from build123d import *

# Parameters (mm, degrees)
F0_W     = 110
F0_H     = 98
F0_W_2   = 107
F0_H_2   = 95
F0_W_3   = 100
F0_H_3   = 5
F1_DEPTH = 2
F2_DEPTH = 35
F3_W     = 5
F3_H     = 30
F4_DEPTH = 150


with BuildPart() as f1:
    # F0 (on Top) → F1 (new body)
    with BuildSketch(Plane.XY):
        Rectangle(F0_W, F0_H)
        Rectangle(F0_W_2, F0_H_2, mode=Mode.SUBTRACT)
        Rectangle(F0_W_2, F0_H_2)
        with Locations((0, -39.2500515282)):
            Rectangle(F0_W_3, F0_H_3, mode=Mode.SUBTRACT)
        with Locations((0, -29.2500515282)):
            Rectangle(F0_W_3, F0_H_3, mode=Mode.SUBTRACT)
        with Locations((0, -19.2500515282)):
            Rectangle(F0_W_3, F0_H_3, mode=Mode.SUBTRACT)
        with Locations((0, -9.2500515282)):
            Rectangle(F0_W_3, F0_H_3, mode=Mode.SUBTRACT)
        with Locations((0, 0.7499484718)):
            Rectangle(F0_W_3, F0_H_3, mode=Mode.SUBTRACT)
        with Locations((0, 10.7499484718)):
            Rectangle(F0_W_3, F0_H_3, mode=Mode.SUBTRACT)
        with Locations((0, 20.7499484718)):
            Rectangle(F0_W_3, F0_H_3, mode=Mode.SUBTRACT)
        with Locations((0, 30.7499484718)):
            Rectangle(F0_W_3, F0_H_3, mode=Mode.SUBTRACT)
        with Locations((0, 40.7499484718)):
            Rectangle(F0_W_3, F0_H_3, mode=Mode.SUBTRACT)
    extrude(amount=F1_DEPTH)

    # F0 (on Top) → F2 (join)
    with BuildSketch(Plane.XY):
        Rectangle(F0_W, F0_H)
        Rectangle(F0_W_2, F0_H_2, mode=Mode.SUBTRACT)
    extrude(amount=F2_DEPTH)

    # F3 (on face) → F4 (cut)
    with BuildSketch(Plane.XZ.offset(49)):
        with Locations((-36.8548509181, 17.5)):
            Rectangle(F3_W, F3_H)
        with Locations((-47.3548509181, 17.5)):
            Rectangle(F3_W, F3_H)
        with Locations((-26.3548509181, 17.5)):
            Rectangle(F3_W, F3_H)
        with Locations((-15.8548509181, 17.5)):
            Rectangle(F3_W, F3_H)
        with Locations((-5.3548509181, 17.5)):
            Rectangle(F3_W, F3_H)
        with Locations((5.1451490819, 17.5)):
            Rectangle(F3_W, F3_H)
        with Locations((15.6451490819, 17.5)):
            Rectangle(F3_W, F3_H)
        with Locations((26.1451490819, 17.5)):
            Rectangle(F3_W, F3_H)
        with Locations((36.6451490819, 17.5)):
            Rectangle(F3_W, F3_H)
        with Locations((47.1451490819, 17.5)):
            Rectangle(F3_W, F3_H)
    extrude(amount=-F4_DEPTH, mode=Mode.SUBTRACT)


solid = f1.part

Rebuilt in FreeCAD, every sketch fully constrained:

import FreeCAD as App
import Part
import Sketcher

V = App.Vector
Q = App.Units.Quantity

doc = App.newDocument("Part")
body = doc.addObject("PartDesign::Body", "Body")

sketch1 = body.newObject("Sketcher::SketchObject", "Sketch")
sketch1.AttachmentSupport = (doc.getObject("XY_Plane"), [""])
sketch1.MapMode = "FlatFace"
sketch1.addGeometry([
    Part.LineSegment(V(-55, 49, 0), V(-55, -49, 0)),
    Part.LineSegment(V(-55, -49, 0), V(55, -49, 0)),
    Part.LineSegment(V(55, -49, 0), V(55, 49, 0)),
    Part.LineSegment(V(55, 49, 0), V(-55, 49, 0)),
    Part.LineSegment(V(50, -41.750052, 0), V(-50, -41.750052, 0)),
    Part.LineSegment(V(-50, -41.750052, 0), V(-50, -36.750052, 0)),
    Part.LineSegment(V(-50, -36.750052, 0), V(50, -36.750052, 0)),
    Part.LineSegment(V(50, -36.750052, 0), V(50, -41.750052, 0)),
    Part.LineSegment(V(50, -31.750052, 0), V(-50, -31.750052, 0)),
    Part.LineSegment(V(-50, -31.750052, 0), V(-50, -26.750052, 0)),
    Part.LineSegment(V(-50, -26.750052, 0), V(50, -26.750052, 0)),
    Part.LineSegment(V(50, -26.750052, 0), V(50, -31.750052, 0)),
    Part.LineSegment(V(50, -21.750052, 0), V(-50, -21.750052, 0)),
    Part.LineSegment(V(-50, -21.750052, 0), V(-50, -16.750052, 0)),
    Part.LineSegment(V(-50, -16.750052, 0), V(50, -16.750052, 0)),
    Part.LineSegment(V(50, -16.750052, 0), V(50, -21.750052, 0)),
    Part.LineSegment(V(50, -11.750052, 0), V(-50, -11.750052, 0)),
    Part.LineSegment(V(-50, -11.750052, 0), V(-50, -6.750052, 0)),
    Part.LineSegment(V(-50, -6.750052, 0), V(50, -6.750052, 0)),
    Part.LineSegment(V(50, -6.750052, 0), V(50, -11.750052, 0)),
    Part.LineSegment(V(50, -1.750052, 0), V(-50, -1.750052, 0)),
    Part.LineSegment(V(-50, -1.750052, 0), V(-50, 3.249948, 0)),
    Part.LineSegment(V(-50, 3.249948, 0), V(50, 3.249948, 0)),
    Part.LineSegment(V(50, 3.249948, 0), V(50, -1.750052, 0)),
    Part.LineSegment(V(50, 8.249948, 0), V(-50, 8.249948, 0)),
    Part.LineSegment(V(-50, 8.249948, 0), V(-50, 13.249948, 0)),
    Part.LineSegment(V(-50, 13.249948, 0), V(50, 13.249948, 0)),
    Part.LineSegment(V(50, 13.249948, 0), V(50, 8.249948, 0)),
    Part.LineSegment(V(50, 18.249948, 0), V(-50, 18.249948, 0)),
    Part.LineSegment(V(-50, 18.249948, 0), V(-50, 23.249948, 0)),
    Part.LineSegment(V(-50, 23.249948, 0), V(50, 23.249948, 0)),
    Part.LineSegment(V(50, 23.249948, 0), V(50, 18.249948, 0)),
    Part.LineSegment(V(50, 28.249948, 0), V(-50, 28.249948, 0)),
    Part.LineSegment(V(-50, 28.249948, 0), V(-50, 33.249948, 0)),
    Part.LineSegment(V(-50, 33.249948, 0), V(50, 33.249948, 0)),
    Part.LineSegment(V(50, 33.249948, 0), V(50, 28.249948, 0)),
    Part.LineSegment(V(50, 38.249948, 0), V(-50, 38.249948, 0)),
    Part.LineSegment(V(-50, 38.249948, 0), V(-50, 43.249948, 0)),
    Part.LineSegment(V(-50, 43.249948, 0), V(50, 43.249948, 0)),
    Part.LineSegment(V(50, 43.249948, 0), V(50, 38.249948, 0)),
], False)
sketch1.addConstraint([
    Sketcher.Constraint("Coincident", 0, 2, 1, 1),
    Sketcher.Constraint("Coincident", 1, 2, 2, 1),
    Sketcher.Constraint("Coincident", 2, 2, 3, 1),
    Sketcher.Constraint("Coincident", 3, 2, 0, 1),
    Sketcher.Constraint("Coincident", 4, 2, 5, 1),
    Sketcher.Constraint("Coincident", 5, 2, 6, 1),
    Sketcher.Constraint("Coincident", 6, 2, 7, 1),
    Sketcher.Constraint("Coincident", 7, 2, 4, 1),
    Sketcher.Constraint("Coincident", 8, 2, 9, 1),
    Sketcher.Constraint("Coincident", 9, 2, 10, 1),
    Sketcher.Constraint("Coincident", 10, 2, 11, 1),
    Sketcher.Constraint("Coincident", 11, 2, 8, 1),
    Sketcher.Constraint("Coincident", 12, 2, 13, 1),
    Sketcher.Constraint("Coincident", 13, 2, 14, 1),
    Sketcher.Constraint("Coincident", 14, 2, 15, 1),
    Sketcher.Constraint("Coincident", 15, 2, 12, 1),
    Sketcher.Constraint("Coincident", 16, 2, 17, 1),
    Sketcher.Constraint("Coincident", 17, 2, 18, 1),
    Sketcher.Constraint("Coincident", 18, 2, 19, 1),
    Sketcher.Constraint("Coincident", 19, 2, 16, 1),
    Sketcher.Constraint("Coincident", 20, 2, 21, 1),
    Sketcher.Constraint("Coincident", 21, 2, 22, 1),
    Sketcher.Constraint("Coincident", 22, 2, 23, 1),
    Sketcher.Constraint("Coincident", 23, 2, 20, 1),
    Sketcher.Constraint("Coincident", 24, 2, 25, 1),
    Sketcher.Constraint("Coincident", 25, 2, 26, 1),
    Sketcher.Constraint("Coincident", 26, 2, 27, 1),
    Sketcher.Constraint("Coincident", 27, 2, 24, 1),
    Sketcher.Constraint("Coincident", 28, 2, 29, 1),
    Sketcher.Constraint("Coincident", 29, 2, 30, 1),
    Sketcher.Constraint("Coincident", 30, 2, 31, 1),
    Sketcher.Constraint("Coincident", 31, 2, 28, 1),
    Sketcher.Constraint("Coincident", 32, 2, 33, 1),
    Sketcher.Constraint("Coincident", 33, 2, 34, 1),
    Sketcher.Constraint("Coincident", 34, 2, 35, 1),
    Sketcher.Constraint("Coincident", 35, 2, 32, 1),
    Sketcher.Constraint("Coincident", 36, 2, 37, 1),
    Sketcher.Constraint("Coincident", 37, 2, 38, 1),
    Sketcher.Constraint("Coincident", 38, 2, 39, 1),
    Sketcher.Constraint("Coincident", 39, 2, 36, 1),
    Sketcher.Constraint("Vertical", 0),
    Sketcher.Constraint("Horizontal", 1),
    Sketcher.Constraint("Vertical", 2),
    Sketcher.Constraint("Horizontal", 3),
    Sketcher.Constraint("Horizontal", 4),
    Sketcher.Constraint("Vertical", 5),
    Sketcher.Constraint("Horizontal", 6),
    Sketcher.Constraint("Vertical", 7),
    Sketcher.Constraint("Horizontal", 8),
    Sketcher.Constraint("Vertical", 9),
    Sketcher.Constraint("Horizontal", 10),
    Sketcher.Constraint("Vertical", 11),
    Sketcher.Constraint("Horizontal", 12),
    Sketcher.Constraint("Vertical", 13),
    Sketcher.Constraint("Horizontal", 14),
    Sketcher.Constraint("Vertical", 15),
    Sketcher.Constraint("Horizontal", 16),
    Sketcher.Constraint("Vertical", 17),
    Sketcher.Constraint("Horizontal", 18),
    Sketcher.Constraint("Vertical", 19),
    Sketcher.Constraint("Horizontal", 20),
    Sketcher.Constraint("Vertical", 21),
    Sketcher.Constraint("Horizontal", 22),
    Sketcher.Constraint("Vertical", 23),
    Sketcher.Constraint("Horizontal", 24),
    Sketcher.Constraint("Vertical", 25),
    Sketcher.Constraint("Horizontal", 26),
    Sketcher.Constraint("Vertical", 27),
    Sketcher.Constraint("Horizontal", 28),
    Sketcher.Constraint("Vertical", 29),
    Sketcher.Constraint("Horizontal", 30),
    Sketcher.Constraint("Vertical", 31),
    Sketcher.Constraint("Horizontal", 32),
    Sketcher.Constraint("Vertical", 33),
    Sketcher.Constraint("Horizontal", 34),
    Sketcher.Constraint("Vertical", 35),
    Sketcher.Constraint("Horizontal", 36),
    Sketcher.Constraint("Vertical", 37),
    Sketcher.Constraint("Horizontal", 38),
    Sketcher.Constraint("Vertical", 39),
    Sketcher.Constraint("Symmetric", 0, 2, 2, 2, -1, 1),
    Sketcher.Constraint("Vertical", 5, 2, 8, 2),
    Sketcher.Constraint("Vertical", 7, 2, 10, 2),
    Sketcher.Constraint("Vertical", 9, 2, 12, 2),
    Sketcher.Constraint("Vertical", 11, 2, 14, 2),
    Sketcher.Constraint("Vertical", 13, 2, 16, 2),
    Sketcher.Constraint("Vertical", 15, 2, 18, 2),
    Sketcher.Constraint("Vertical", 17, 2, 20, 2),
    Sketcher.Constraint("Vertical", 19, 2, 22, 2),
    Sketcher.Constraint("Vertical", 21, 2, 24, 2),
    Sketcher.Constraint("Vertical", 23, 2, 26, 2),
    Sketcher.Constraint("Vertical", 25, 2, 28, 2),
    Sketcher.Constraint("Vertical", 27, 2, 30, 2),
    Sketcher.Constraint("Vertical", 29, 2, 32, 2),
    Sketcher.Constraint("Vertical", 31, 2, 34, 2),
    Sketcher.Constraint("Vertical", 33, 2, 36, 2),
    Sketcher.Constraint("Vertical", 35, 2, 38, 2),
    Sketcher.Constraint("Equal", 7, 9),
    Sketcher.Constraint("Equal", 11, 13),
    Sketcher.Constraint("Equal", 15, 17),
    Sketcher.Constraint("Equal", 19, 21),
    Sketcher.Constraint("Equal", 23, 25),
    Sketcher.Constraint("Equal", 27, 29),
    Sketcher.Constraint("Equal", 31, 33),
    Sketcher.Constraint("Equal", 35, 37),
    Sketcher.Constraint("DistanceX", 1, 1, 1, 2, Q("110 mm")),
    Sketcher.Constraint("DistanceX", 4, 2, 4, 1, Q("100 mm")),
    Sketcher.Constraint("DistanceY", 0, 2, 0, 1, Q("98 mm")),
    Sketcher.Constraint("DistanceY", 5, 1, 5, 2, Q("5 mm")),
    Sketcher.Constraint("DistanceX", 4, 2, -1, 1, Q("50 mm")),
    Sketcher.Constraint("DistanceY", 5, 2, 8, 2, Q("5 mm")),
    Sketcher.Constraint("DistanceY", 9, 2, 12, 2, Q("5 mm")),
    Sketcher.Constraint("DistanceY", 13, 2, 16, 2, Q("5 mm")),
    Sketcher.Constraint("DistanceY", 17, 2, 20, 2, Q("5 mm")),
    Sketcher.Constraint("DistanceY", 21, 2, 24, 2, Q("5 mm")),
    Sketcher.Constraint("DistanceY", 25, 2, 28, 2, Q("5 mm")),
    Sketcher.Constraint("DistanceY", 29, 2, 32, 2, Q("5 mm")),
    Sketcher.Constraint("DistanceY", 33, 2, 36, 2, Q("5 mm")),
    Sketcher.Constraint("DistanceY", 4, 2, -1, 1, Q("41.750052 mm")),
])
pad1 = body.newObject("PartDesign::Pad", "Pad")
pad1.Profile = sketch1
pad1.Length = 2

sketch2 = body.newObject("Sketcher::SketchObject", "Sketch001")
sketch2.AttachmentSupport = (doc.getObject("XY_Plane"), [""])
sketch2.MapMode = "FlatFace"
sketch2.addGeometry([
    Part.LineSegment(V(-55, 49, 0), V(-55, -49, 0)),
    Part.LineSegment(V(-55, -49, 0), V(55, -49, 0)),
    Part.LineSegment(V(55, -49, 0), V(55, 49, 0)),
    Part.LineSegment(V(55, 49, 0), V(-55, 49, 0)),
    Part.LineSegment(V(53.5, -47.5, 0), V(-53.5, -47.5, 0)),
    Part.LineSegment(V(-53.5, -47.5, 0), V(-53.5, 47.5, 0)),
    Part.LineSegment(V(-53.5, 47.5, 0), V(53.5, 47.5, 0)),
    Part.LineSegment(V(53.5, 47.5, 0), V(53.5, -47.5, 0)),
], False)
sketch2.addConstraint([
    Sketcher.Constraint("Coincident", 0, 2, 1, 1),
    Sketcher.Constraint("Coincident", 1, 2, 2, 1),
    Sketcher.Constraint("Coincident", 2, 2, 3, 1),
    Sketcher.Constraint("Coincident", 3, 2, 0, 1),
    Sketcher.Constraint("Coincident", 4, 2, 5, 1),
    Sketcher.Constraint("Coincident", 5, 2, 6, 1),
    Sketcher.Constraint("Coincident", 6, 2, 7, 1),
    Sketcher.Constraint("Coincident", 7, 2, 4, 1),
    Sketcher.Constraint("Vertical", 0),
    Sketcher.Constraint("Horizontal", 1),
    Sketcher.Constraint("Vertical", 2),
    Sketcher.Constraint("Horizontal", 3),
    Sketcher.Constraint("Horizontal", 4),
    Sketcher.Constraint("Vertical", 5),
    Sketcher.Constraint("Horizontal", 6),
    Sketcher.Constraint("Vertical", 7),
    Sketcher.Constraint("Symmetric", 0, 2, 2, 2, -1, 1),
    Sketcher.Constraint("Symmetric", 4, 2, 6, 2, -1, 1),
    Sketcher.Constraint("DistanceX", 1, 1, 1, 2, Q("110 mm")),
    Sketcher.Constraint("DistanceX", 4, 2, 4, 1, Q("107 mm")),
    Sketcher.Constraint("DistanceY", 0, 2, 0, 1, Q("98 mm")),
    Sketcher.Constraint("DistanceY", 5, 1, 5, 2, Q("95 mm")),
])
pad2 = body.newObject("PartDesign::Pad", "Pad001")
pad2.Profile = sketch2
pad2.Length = 35

sketch3 = body.newObject("Sketcher::SketchObject", "Sketch002")
sketch3.AttachmentSupport = (doc.getObject("XZ_Plane"), [""])
sketch3.MapMode = "FlatFace"
sketch3.AttachmentOffset = App.Placement(V(0, 0, 49), App.Rotation())
sketch3.addGeometry([
    Part.LineSegment(V(-39.354851, 32.5, 0), V(-39.354851, 2.5, 0)),
    Part.LineSegment(V(-39.354851, 2.5, 0), V(-34.354851, 2.5, 0)),
    Part.LineSegment(V(-34.354851, 2.5, 0), V(-34.354851, 32.5, 0)),
    Part.LineSegment(V(-34.354851, 32.5, 0), V(-39.354851, 32.5, 0)),
    Part.LineSegment(V(-49.854851, 32.5, 0), V(-49.854851, 2.5, 0)),
    Part.LineSegment(V(-49.854851, 2.5, 0), V(-44.854851, 2.5, 0)),
    Part.LineSegment(V(-44.854851, 2.5, 0), V(-44.854851, 32.5, 0)),
    Part.LineSegment(V(-44.854851, 32.5, 0), V(-49.854851, 32.5, 0)),
    Part.LineSegment(V(-28.854851, 32.5, 0), V(-28.854851, 2.5, 0)),
    Part.LineSegment(V(-28.854851, 2.5, 0), V(-23.854851, 2.5, 0)),
    Part.LineSegment(V(-23.854851, 2.5, 0), V(-23.854851, 32.5, 0)),
    Part.LineSegment(V(-23.854851, 32.5, 0), V(-28.854851, 32.5, 0)),
    Part.LineSegment(V(-18.354851, 32.5, 0), V(-18.354851, 2.5, 0)),
    Part.LineSegment(V(-18.354851, 2.5, 0), V(-13.354851, 2.5, 0)),
    Part.LineSegment(V(-13.354851, 2.5, 0), V(-13.354851, 32.5, 0)),
    Part.LineSegment(V(-13.354851, 32.5, 0), V(-18.354851, 32.5, 0)),
    Part.LineSegment(V(-7.854851, 32.5, 0), V(-7.854851, 2.5, 0)),
    Part.LineSegment(V(-7.854851, 2.5, 0), V(-2.854851, 2.5, 0)),
    Part.LineSegment(V(-2.854851, 2.5, 0), V(-2.854851, 32.5, 0)),
    Part.LineSegment(V(-2.854851, 32.5, 0), V(-7.854851, 32.5, 0)),
    Part.LineSegment(V(2.645149, 32.5, 0), V(2.645149, 2.5, 0)),
    Part.LineSegment(V(2.645149, 2.5, 0), V(7.645149, 2.5, 0)),
    Part.LineSegment(V(7.645149, 2.5, 0), V(7.645149, 32.5, 0)),
    Part.LineSegment(V(7.645149, 32.5, 0), V(2.645149, 32.5, 0)),
    Part.LineSegment(V(13.145149, 32.5, 0), V(13.145149, 2.5, 0)),
    Part.LineSegment(V(13.145149, 2.5, 0), V(18.145149, 2.5, 0)),
    Part.LineSegment(V(18.145149, 2.5, 0), V(18.145149, 32.5, 0)),
    Part.LineSegment(V(18.145149, 32.5, 0), V(13.145149, 32.5, 0)),
    Part.LineSegment(V(23.645149, 32.5, 0), V(23.645149, 2.5, 0)),
    Part.LineSegment(V(23.645149, 2.5, 0), V(28.645149, 2.5, 0)),
    Part.LineSegment(V(28.645149, 2.5, 0), V(28.645149, 32.5, 0)),
    Part.LineSegment(V(28.645149, 32.5, 0), V(23.645149, 32.5, 0)),
    Part.LineSegment(V(34.145149, 32.5, 0), V(34.145149, 2.5, 0)),
    Part.LineSegment(V(34.145149, 2.5, 0), V(39.145149, 2.5, 0)),
    Part.LineSegment(V(39.145149, 2.5, 0), V(39.145149, 32.5, 0)),
    Part.LineSegment(V(39.145149, 32.5, 0), V(34.145149, 32.5, 0)),
    Part.LineSegment(V(44.645149, 32.5, 0), V(44.645149, 2.5, 0)),
    Part.LineSegment(V(44.645149, 2.5, 0), V(49.645149, 2.5, 0)),
    Part.LineSegment(V(49.645149, 2.5, 0), V(49.645149, 32.5, 0)),
    Part.LineSegment(V(49.645149, 32.5, 0), V(44.645149, 32.5, 0)),
], False)
sketch3.addConstraint([
    Sketcher.Constraint("Coincident", 0, 2, 1, 1),
    Sketcher.Constraint("Coincident", 1, 2, 2, 1),
    Sketcher.Constraint("Coincident", 2, 2, 3, 1),
    Sketcher.Constraint("Coincident", 3, 2, 0, 1),
    Sketcher.Constraint("Coincident", 4, 2, 5, 1),
    Sketcher.Constraint("Coincident", 5, 2, 6, 1),
    Sketcher.Constraint("Coincident", 6, 2, 7, 1),
    Sketcher.Constraint("Coincident", 7, 2, 4, 1),
    Sketcher.Constraint("Coincident", 8, 2, 9, 1),
    Sketcher.Constraint("Coincident", 9, 2, 10, 1),
    Sketcher.Constraint("Coincident", 10, 2, 11, 1),
    Sketcher.Constraint("Coincident", 11, 2, 8, 1),
    Sketcher.Constraint("Coincident", 12, 2, 13, 1),
    Sketcher.Constraint("Coincident", 13, 2, 14, 1),
    Sketcher.Constraint("Coincident", 14, 2, 15, 1),
    Sketcher.Constraint("Coincident", 15, 2, 12, 1),
    Sketcher.Constraint("Coincident", 16, 2, 17, 1),
    Sketcher.Constraint("Coincident", 17, 2, 18, 1),
    Sketcher.Constraint("Coincident", 18, 2, 19, 1),
    Sketcher.Constraint("Coincident", 19, 2, 16, 1),
    Sketcher.Constraint("Coincident", 20, 2, 21, 1),
    Sketcher.Constraint("Coincident", 21, 2, 22, 1),
    Sketcher.Constraint("Coincident", 22, 2, 23, 1),
    Sketcher.Constraint("Coincident", 23, 2, 20, 1),
    Sketcher.Constraint("Coincident", 24, 2, 25, 1),
    Sketcher.Constraint("Coincident", 25, 2, 26, 1),
    Sketcher.Constraint("Coincident", 26, 2, 27, 1),
    Sketcher.Constraint("Coincident", 27, 2, 24, 1),
    Sketcher.Constraint("Coincident", 28, 2, 29, 1),
    Sketcher.Constraint("Coincident", 29, 2, 30, 1),
    Sketcher.Constraint("Coincident", 30, 2, 31, 1),
    Sketcher.Constraint("Coincident", 31, 2, 28, 1),
    Sketcher.Constraint("Coincident", 32, 2, 33, 1),
    Sketcher.Constraint("Coincident", 33, 2, 34, 1),
    Sketcher.Constraint("Coincident", 34, 2, 35, 1),
    Sketcher.Constraint("Coincident", 35, 2, 32, 1),
    Sketcher.Constraint("Coincident", 36, 2, 37, 1),
    Sketcher.Constraint("Coincident", 37, 2, 38, 1),
    Sketcher.Constraint("Coincident", 38, 2, 39, 1),
    Sketcher.Constraint("Coincident", 39, 2, 36, 1),
    Sketcher.Constraint("Vertical", 0),
    Sketcher.Constraint("Horizontal", 1),
    Sketcher.Constraint("Vertical", 2),
    Sketcher.Constraint("Horizontal", 3),
    Sketcher.Constraint("Vertical", 4),
    Sketcher.Constraint("Horizontal", 5),
    Sketcher.Constraint("Vertical", 6),
    Sketcher.Constraint("Horizontal", 7),
    Sketcher.Constraint("Vertical", 8),
    Sketcher.Constraint("Horizontal", 9),
    Sketcher.Constraint("Vertical", 10),
    Sketcher.Constraint("Horizontal", 11),
    Sketcher.Constraint("Vertical", 12),
    Sketcher.Constraint("Horizontal", 13),
    Sketcher.Constraint("Vertical", 14),
    Sketcher.Constraint("Horizontal", 15),
    Sketcher.Constraint("Vertical", 16),
    Sketcher.Constraint("Horizontal", 17),
    Sketcher.Constraint("Vertical", 18),
    Sketcher.Constraint("Horizontal", 19),
    Sketcher.Constraint("Vertical", 20),
    Sketcher.Constraint("Horizontal", 21),
    Sketcher.Constraint("Vertical", 22),
    Sketcher.Constraint("Horizontal", 23),
    Sketcher.Constraint("Vertical", 24),
    Sketcher.Constraint("Horizontal", 25),
    Sketcher.Constraint("Vertical", 26),
    Sketcher.Constraint("Horizontal", 27),
    Sketcher.Constraint("Vertical", 28),
    Sketcher.Constraint("Horizontal", 29),
    Sketcher.Constraint("Vertical", 30),
    Sketcher.Constraint("Horizontal", 31),
    Sketcher.Constraint("Vertical", 32),
    Sketcher.Constraint("Horizontal", 33),
    Sketcher.Constraint("Vertical", 34),
    Sketcher.Constraint("Horizontal", 35),
    Sketcher.Constraint("Vertical", 36),
    Sketcher.Constraint("Horizontal", 37),
    Sketcher.Constraint("Vertical", 38),
    Sketcher.Constraint("Horizontal", 39),
    Sketcher.Constraint("Horizontal", 1, 2, 4, 2),
    Sketcher.Constraint("Horizontal", 3, 2, 6, 2),
    Sketcher.Constraint("Horizontal", 5, 2, 8, 2),
    Sketcher.Constraint("Horizontal", 7, 2, 10, 2),
    Sketcher.Constraint("Horizontal", 9, 2, 12, 2),
    Sketcher.Constraint("Horizontal", 11, 2, 14, 2),
    Sketcher.Constraint("Horizontal", 13, 2, 16, 2),
    Sketcher.Constraint("Horizontal", 15, 2, 18, 2),
    Sketcher.Constraint("Horizontal", 17, 2, 20, 2),
    Sketcher.Constraint("Horizontal", 19, 2, 22, 2),
    Sketcher.Constraint("Horizontal", 21, 2, 24, 2),
    Sketcher.Constraint("Horizontal", 23, 2, 26, 2),
    Sketcher.Constraint("Horizontal", 25, 2, 28, 2),
    Sketcher.Constraint("Horizontal", 27, 2, 30, 2),
    Sketcher.Constraint("Horizontal", 29, 2, 32, 2),
    Sketcher.Constraint("Horizontal", 31, 2, 34, 2),
    Sketcher.Constraint("Horizontal", 33, 2, 36, 2),
    Sketcher.Constraint("Horizontal", 35, 2, 38, 2),
    Sketcher.Constraint("Equal", 3, 5),
    Sketcher.Constraint("Equal", 7, 9),
    Sketcher.Constraint("Equal", 11, 13),
    Sketcher.Constraint("Equal", 15, 17),
    Sketcher.Constraint("Equal", 19, 21),
    Sketcher.Constraint("Equal", 23, 25),
    Sketcher.Constraint("Equal", 27, 29),
    Sketcher.Constraint("Equal", 31, 33),
    Sketcher.Constraint("Equal", 35, 37),
    Sketcher.Constraint("DistanceX", 1, 1, 1, 2, Q("5 mm")),
    Sketcher.Constraint("DistanceY", 0, 2, 0, 1, Q("30 mm")),
    Sketcher.Constraint("DistanceX", 5, 2, 8, 2, Q("16 mm")),
    Sketcher.Constraint("DistanceX", 1, 2, 12, 2, Q("16 mm")),
    Sketcher.Constraint("DistanceX", 9, 2, 16, 2, Q("16 mm")),
    Sketcher.Constraint("DistanceX", 13, 2, 20, 2, Q("16 mm")),
    Sketcher.Constraint("DistanceX", 17, 2, 24, 2, Q("16 mm")),
    Sketcher.Constraint("DistanceX", 21, 2, 28, 2, Q("16 mm")),
    Sketcher.Constraint("DistanceX", 25, 2, 32, 2, Q("16 mm")),
    Sketcher.Constraint("DistanceX", 29, 2, 36, 2, Q("16 mm")),
    Sketcher.Constraint("DistanceY", -1, 1, 0, 2, Q("2.5 mm")),
    Sketcher.Constraint("DistanceX", 4, 2, 0, 2, Q("10.5 mm")),
    Sketcher.Constraint("DistanceX", 0, 2, -1, 1, Q("39.354851 mm")),
])
pocket1 = body.newObject("PartDesign::Pocket", "Pocket")
pocket1.Profile = sketch3
pocket1.Length = 150

doc.recompute()
